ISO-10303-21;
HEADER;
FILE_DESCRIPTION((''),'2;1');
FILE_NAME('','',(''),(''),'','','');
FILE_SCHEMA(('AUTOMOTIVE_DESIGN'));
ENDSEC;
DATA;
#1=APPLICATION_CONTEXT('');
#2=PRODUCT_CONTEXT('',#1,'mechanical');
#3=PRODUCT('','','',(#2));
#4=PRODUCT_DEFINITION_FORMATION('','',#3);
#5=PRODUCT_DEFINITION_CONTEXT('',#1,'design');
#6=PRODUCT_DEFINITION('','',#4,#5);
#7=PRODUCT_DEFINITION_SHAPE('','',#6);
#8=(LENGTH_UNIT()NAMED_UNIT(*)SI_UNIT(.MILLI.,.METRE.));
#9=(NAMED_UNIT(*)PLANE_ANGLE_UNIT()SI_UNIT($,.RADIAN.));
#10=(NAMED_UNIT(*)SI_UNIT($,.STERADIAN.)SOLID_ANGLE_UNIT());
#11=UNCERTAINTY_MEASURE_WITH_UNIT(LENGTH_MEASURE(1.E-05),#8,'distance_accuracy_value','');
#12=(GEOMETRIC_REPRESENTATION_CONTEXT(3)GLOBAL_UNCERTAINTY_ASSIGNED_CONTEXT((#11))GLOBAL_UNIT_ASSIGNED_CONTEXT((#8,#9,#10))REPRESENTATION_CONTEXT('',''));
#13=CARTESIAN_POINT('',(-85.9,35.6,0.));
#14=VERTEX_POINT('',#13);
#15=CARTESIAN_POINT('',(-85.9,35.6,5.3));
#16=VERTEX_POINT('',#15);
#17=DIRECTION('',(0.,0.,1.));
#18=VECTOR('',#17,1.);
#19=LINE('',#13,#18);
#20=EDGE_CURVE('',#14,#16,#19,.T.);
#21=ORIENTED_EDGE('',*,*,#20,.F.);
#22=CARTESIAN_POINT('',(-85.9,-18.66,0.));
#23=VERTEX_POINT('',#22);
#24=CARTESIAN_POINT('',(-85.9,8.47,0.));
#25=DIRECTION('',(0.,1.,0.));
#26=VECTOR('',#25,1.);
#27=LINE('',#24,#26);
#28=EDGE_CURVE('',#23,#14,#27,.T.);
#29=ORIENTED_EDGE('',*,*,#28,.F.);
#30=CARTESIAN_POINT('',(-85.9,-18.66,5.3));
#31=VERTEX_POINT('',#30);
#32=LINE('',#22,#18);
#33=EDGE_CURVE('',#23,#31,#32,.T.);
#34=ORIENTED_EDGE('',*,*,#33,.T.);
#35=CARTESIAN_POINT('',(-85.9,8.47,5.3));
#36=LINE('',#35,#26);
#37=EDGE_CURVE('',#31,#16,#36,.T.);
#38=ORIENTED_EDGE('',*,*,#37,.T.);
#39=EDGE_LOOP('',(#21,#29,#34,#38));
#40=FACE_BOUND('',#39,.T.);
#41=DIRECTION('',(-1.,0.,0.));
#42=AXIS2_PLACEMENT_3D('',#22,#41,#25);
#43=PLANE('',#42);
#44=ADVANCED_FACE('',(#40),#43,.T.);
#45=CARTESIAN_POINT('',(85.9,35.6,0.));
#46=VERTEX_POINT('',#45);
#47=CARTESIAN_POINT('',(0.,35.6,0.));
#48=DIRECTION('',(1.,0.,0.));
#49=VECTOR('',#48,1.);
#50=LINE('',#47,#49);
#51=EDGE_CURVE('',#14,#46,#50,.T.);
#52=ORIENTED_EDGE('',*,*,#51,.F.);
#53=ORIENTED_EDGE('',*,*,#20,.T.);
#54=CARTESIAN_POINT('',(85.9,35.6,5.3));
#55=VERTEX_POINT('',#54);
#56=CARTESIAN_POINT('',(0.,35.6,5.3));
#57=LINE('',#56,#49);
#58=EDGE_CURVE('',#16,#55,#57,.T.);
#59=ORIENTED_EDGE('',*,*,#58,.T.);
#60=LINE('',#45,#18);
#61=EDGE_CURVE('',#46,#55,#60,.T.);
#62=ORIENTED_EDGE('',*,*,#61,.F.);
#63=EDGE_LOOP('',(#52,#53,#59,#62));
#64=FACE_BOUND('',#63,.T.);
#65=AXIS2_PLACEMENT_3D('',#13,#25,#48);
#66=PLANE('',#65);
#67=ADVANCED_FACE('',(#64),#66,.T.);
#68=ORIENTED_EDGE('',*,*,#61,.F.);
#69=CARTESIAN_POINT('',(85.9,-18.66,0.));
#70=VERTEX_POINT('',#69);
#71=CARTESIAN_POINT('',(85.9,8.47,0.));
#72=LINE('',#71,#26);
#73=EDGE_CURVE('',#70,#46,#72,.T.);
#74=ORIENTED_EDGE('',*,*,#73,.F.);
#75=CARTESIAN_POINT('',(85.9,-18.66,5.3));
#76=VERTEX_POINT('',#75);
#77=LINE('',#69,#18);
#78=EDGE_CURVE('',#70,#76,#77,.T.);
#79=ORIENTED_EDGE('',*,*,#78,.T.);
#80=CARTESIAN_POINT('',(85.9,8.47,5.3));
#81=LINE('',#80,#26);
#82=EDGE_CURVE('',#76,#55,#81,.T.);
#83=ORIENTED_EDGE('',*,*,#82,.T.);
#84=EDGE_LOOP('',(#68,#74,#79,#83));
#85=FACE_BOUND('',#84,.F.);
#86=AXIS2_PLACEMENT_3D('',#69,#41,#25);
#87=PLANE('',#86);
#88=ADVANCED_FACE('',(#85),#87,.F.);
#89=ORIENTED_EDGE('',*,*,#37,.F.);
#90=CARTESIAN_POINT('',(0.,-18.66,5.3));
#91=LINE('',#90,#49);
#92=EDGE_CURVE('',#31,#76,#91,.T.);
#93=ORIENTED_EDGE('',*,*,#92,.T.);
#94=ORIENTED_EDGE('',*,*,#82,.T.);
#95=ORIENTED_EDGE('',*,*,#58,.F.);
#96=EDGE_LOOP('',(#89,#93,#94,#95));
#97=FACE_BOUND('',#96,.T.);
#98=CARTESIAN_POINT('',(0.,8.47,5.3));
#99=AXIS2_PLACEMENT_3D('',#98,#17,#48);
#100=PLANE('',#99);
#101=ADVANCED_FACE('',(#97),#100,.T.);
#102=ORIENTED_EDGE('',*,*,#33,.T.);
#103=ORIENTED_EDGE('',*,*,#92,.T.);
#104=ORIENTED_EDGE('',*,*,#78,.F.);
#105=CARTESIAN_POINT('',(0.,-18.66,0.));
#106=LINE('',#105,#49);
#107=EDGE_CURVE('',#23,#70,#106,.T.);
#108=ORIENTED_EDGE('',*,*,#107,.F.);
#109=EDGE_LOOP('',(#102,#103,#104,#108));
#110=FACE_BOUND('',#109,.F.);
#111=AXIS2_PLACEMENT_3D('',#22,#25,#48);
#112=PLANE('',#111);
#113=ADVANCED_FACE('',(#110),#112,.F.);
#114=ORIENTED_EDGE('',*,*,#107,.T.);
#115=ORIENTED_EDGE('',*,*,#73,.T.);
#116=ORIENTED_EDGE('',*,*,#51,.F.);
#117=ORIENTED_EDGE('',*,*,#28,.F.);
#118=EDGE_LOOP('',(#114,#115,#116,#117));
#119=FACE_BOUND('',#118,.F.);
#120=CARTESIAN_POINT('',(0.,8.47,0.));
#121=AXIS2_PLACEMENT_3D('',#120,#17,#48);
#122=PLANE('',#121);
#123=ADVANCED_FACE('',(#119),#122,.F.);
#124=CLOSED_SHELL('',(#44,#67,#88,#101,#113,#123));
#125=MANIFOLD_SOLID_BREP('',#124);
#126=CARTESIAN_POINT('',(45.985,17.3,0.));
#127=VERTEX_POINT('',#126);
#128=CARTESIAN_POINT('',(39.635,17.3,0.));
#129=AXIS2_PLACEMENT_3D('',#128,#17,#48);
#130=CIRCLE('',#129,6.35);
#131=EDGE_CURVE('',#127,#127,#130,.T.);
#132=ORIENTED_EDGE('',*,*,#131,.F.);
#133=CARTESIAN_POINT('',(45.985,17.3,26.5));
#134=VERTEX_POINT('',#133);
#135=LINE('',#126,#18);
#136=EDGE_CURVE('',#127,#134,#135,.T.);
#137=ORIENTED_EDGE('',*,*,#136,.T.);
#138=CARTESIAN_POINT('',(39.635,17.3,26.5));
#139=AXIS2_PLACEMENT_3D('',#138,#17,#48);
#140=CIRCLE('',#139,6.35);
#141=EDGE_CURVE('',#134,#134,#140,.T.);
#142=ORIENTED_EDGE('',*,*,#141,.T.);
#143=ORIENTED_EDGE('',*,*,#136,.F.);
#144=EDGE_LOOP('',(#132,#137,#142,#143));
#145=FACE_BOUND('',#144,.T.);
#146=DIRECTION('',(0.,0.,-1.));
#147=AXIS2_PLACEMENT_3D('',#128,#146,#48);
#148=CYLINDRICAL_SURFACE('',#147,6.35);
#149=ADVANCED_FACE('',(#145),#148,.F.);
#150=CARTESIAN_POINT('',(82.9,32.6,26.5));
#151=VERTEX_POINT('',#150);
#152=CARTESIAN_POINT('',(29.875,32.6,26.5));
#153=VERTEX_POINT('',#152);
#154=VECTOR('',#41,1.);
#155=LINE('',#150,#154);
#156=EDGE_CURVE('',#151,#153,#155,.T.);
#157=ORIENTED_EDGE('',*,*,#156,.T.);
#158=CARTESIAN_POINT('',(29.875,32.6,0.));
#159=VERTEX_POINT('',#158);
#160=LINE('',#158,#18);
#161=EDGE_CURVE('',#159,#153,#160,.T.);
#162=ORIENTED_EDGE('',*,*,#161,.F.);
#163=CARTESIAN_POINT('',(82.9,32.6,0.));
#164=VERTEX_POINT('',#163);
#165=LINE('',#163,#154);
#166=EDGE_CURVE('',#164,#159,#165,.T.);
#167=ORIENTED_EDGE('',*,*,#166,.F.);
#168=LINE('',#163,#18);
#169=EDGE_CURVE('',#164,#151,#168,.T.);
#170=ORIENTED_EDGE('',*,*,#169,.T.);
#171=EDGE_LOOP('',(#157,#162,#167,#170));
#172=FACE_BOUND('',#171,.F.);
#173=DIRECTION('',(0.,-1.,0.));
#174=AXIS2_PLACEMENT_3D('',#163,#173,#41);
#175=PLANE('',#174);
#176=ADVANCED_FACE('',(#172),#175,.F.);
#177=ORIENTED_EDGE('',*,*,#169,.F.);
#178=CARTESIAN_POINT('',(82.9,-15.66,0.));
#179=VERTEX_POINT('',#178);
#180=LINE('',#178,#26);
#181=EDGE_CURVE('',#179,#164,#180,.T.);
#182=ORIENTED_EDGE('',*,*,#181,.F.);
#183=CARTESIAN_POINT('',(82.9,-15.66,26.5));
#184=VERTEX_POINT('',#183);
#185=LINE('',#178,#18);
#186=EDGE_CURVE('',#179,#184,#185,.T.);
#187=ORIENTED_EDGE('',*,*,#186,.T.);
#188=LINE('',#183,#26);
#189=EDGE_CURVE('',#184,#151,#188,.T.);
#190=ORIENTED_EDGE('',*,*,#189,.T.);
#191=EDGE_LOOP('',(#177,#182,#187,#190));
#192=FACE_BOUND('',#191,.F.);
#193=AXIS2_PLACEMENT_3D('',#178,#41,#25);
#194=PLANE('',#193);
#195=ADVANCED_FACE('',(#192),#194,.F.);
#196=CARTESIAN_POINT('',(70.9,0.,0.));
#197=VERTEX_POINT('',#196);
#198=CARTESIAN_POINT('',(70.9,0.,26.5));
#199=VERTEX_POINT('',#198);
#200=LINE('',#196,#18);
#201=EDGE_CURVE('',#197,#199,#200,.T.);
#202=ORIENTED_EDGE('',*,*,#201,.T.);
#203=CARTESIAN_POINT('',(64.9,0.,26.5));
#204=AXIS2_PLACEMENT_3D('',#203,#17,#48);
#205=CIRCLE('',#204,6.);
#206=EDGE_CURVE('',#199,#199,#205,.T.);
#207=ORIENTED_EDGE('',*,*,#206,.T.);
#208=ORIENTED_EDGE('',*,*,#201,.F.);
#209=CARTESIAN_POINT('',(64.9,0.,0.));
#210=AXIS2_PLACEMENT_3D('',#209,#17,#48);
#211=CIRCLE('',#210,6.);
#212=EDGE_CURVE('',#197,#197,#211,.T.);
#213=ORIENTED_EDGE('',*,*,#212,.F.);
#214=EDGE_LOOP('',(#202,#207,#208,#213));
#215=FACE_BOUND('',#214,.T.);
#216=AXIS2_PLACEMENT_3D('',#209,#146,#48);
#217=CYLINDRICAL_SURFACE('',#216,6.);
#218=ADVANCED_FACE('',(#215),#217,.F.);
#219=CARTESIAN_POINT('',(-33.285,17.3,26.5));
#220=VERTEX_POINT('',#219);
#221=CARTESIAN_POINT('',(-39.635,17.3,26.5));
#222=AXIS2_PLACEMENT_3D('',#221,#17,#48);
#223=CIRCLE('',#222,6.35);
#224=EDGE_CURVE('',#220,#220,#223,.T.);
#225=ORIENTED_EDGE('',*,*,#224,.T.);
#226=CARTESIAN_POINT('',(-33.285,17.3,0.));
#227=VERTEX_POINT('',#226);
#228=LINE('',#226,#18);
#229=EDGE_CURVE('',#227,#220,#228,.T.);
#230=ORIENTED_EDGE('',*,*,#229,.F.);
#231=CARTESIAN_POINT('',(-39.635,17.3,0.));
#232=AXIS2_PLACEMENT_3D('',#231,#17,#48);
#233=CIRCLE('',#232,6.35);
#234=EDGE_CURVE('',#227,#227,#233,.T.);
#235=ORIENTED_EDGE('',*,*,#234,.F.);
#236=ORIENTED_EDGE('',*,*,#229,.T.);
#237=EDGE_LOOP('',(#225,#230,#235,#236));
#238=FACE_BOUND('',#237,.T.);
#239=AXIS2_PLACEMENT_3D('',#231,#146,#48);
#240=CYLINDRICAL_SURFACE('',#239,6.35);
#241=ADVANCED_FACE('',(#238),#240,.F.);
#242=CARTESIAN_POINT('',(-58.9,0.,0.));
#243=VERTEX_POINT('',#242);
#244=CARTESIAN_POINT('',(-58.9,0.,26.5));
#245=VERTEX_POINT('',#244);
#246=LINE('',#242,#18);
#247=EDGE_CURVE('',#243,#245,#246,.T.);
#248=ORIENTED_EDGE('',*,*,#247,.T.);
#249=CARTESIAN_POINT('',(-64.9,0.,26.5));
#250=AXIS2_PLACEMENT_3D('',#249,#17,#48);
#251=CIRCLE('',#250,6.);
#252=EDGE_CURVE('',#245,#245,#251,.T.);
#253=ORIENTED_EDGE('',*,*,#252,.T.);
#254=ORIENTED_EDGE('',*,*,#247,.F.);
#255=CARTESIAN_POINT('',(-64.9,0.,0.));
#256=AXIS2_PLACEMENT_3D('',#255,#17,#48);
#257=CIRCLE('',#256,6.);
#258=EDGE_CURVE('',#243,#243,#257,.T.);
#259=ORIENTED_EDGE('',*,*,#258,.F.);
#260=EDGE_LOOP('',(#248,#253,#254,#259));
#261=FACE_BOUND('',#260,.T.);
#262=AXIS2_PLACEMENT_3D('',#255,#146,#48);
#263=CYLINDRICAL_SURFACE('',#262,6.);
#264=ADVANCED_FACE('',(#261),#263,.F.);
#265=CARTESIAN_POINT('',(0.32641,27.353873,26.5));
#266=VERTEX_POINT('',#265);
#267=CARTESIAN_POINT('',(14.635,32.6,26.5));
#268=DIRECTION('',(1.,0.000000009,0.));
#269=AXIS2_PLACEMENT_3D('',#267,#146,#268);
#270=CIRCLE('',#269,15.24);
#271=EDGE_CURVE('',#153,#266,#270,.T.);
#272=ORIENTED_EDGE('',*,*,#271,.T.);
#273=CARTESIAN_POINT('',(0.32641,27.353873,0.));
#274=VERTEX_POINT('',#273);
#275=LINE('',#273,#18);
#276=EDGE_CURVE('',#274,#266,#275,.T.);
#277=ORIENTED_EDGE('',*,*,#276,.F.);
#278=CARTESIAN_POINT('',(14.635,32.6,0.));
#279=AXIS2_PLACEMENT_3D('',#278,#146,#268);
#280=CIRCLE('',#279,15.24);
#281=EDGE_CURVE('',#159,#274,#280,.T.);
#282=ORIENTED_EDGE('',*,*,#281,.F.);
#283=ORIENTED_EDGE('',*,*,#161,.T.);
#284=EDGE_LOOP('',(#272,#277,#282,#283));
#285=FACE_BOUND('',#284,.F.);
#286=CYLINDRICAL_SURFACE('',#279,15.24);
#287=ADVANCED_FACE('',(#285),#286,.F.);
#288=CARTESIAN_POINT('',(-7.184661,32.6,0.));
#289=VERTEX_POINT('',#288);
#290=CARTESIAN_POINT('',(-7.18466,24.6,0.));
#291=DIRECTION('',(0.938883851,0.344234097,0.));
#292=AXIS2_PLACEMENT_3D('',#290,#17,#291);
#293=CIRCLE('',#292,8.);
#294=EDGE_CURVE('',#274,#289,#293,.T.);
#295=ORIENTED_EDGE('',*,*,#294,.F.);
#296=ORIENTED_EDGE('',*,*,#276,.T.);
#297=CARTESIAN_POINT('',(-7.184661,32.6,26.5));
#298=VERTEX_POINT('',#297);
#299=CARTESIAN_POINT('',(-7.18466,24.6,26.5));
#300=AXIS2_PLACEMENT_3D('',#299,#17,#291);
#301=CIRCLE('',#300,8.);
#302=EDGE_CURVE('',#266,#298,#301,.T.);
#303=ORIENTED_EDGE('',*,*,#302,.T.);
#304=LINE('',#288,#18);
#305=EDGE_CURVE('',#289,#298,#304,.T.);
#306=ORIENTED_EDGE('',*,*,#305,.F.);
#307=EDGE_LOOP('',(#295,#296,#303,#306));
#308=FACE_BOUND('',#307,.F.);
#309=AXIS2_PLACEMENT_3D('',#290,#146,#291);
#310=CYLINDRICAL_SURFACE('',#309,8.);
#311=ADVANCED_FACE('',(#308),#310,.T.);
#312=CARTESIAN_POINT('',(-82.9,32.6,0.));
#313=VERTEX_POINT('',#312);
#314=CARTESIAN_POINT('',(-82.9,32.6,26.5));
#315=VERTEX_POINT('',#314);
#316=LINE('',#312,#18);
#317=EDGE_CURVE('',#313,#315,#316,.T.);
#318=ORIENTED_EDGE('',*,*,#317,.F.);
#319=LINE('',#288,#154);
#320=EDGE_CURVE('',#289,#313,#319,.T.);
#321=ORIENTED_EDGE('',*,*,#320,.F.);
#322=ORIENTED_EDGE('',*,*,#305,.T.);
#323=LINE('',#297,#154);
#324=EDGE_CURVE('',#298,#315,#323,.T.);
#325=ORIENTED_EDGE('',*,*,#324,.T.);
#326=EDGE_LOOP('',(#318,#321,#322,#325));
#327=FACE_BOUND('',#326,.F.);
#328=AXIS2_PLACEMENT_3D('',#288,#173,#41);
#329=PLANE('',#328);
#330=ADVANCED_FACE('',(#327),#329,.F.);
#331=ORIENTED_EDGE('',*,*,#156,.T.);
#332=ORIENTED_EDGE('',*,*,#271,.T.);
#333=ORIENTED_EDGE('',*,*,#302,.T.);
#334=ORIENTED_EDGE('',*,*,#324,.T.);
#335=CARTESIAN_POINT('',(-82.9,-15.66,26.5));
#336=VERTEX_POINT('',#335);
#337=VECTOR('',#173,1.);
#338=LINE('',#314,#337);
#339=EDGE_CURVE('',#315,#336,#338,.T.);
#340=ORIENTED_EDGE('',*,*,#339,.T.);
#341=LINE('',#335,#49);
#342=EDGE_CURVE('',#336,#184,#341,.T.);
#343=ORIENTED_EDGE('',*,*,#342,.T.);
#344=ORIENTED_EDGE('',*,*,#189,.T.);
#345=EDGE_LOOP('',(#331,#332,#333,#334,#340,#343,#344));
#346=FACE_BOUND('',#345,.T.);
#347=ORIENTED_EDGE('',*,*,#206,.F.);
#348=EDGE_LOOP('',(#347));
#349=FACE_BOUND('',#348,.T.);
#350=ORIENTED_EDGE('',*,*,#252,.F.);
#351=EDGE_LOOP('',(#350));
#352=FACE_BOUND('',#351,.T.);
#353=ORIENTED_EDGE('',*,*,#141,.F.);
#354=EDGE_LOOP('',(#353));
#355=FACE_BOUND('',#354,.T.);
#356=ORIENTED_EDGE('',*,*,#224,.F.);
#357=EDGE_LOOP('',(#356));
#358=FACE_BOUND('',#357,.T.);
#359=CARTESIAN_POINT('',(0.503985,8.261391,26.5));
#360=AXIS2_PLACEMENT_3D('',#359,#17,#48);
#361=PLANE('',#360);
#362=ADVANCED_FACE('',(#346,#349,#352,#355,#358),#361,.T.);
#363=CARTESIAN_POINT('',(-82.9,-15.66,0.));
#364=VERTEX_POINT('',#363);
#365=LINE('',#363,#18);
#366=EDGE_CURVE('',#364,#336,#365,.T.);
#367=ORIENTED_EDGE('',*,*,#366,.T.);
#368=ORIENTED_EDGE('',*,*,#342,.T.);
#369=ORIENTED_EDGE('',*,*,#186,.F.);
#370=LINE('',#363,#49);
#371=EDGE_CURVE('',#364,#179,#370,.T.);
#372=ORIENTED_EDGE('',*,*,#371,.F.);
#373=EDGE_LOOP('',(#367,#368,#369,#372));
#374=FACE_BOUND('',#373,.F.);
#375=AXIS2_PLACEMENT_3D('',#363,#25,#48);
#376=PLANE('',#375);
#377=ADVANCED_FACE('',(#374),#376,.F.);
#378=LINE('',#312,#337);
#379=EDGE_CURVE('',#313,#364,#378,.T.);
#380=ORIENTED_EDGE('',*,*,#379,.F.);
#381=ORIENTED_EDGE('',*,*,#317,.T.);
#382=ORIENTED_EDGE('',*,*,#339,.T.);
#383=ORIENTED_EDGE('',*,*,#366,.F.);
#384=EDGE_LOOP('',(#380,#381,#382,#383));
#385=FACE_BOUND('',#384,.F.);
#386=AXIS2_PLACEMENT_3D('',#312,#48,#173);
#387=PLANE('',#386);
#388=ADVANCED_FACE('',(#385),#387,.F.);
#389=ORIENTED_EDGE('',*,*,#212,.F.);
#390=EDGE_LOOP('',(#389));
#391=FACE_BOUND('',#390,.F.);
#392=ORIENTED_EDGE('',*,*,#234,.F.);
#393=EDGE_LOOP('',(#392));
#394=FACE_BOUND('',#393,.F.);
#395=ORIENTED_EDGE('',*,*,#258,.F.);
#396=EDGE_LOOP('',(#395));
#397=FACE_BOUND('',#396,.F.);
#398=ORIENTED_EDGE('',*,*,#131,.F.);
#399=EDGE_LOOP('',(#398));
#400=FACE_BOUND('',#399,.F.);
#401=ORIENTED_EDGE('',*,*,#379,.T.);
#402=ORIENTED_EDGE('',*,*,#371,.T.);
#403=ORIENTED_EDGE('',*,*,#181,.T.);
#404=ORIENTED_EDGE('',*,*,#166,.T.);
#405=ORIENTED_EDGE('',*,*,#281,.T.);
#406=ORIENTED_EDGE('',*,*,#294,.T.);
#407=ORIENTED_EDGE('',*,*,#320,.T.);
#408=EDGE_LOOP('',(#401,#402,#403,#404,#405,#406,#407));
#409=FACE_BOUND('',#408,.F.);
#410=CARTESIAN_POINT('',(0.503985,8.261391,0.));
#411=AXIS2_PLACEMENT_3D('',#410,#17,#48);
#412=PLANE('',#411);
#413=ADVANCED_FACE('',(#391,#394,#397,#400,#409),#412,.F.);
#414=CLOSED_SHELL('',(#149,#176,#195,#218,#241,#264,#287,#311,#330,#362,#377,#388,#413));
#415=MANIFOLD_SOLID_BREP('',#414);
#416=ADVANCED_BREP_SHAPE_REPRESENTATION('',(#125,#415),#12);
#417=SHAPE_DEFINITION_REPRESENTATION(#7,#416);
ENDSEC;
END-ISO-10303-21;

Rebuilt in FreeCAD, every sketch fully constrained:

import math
import FreeCAD as App
import Part
import Sketcher
Q = App.Units.Quantity


def add_polygon(sketch, points):
    """Adds a closed chain of lines whose ends are joined by coincident constraints."""
    first, n = sketch.GeometryCount, len(points)
    for a, b in zip(points, points[1:] + points[:1]):
        sketch.addGeometry(Part.LineSegment(App.Vector(*a, 0), App.Vector(*b, 0)), False)
    for i in range(n):
        sketch.addConstraint(Sketcher.Constraint("Coincident", first + i, 2, first + (i + 1) % n, 1))

doc = App.newDocument("Part")
body = doc.addObject("PartDesign::Body", "Body")

# Sketch on XY plane
sketch1 = body.newObject("Sketcher::SketchObject", "Sketch")
sketch1.AttachmentSupport = (doc.getObject("XY_Plane"), [""])
sketch1.MapMode = "FlatFace"
sketch1.addGeometry(Part.LineSegment(App.Vector(-7, 33, 0), App.Vector(-83, 33, 0)), False)
sketch1.addGeometry(Part.LineSegment(App.Vector(-83, 33, 0), App.Vector(-83, -16, 0)), False)
sketch1.addGeometry(Part.LineSegment(App.Vector(-83, -16, 0), App.Vector(83, -16, 0)), False)
sketch1.addGeometry(Part.LineSegment(App.Vector(83, -16, 0), App.Vector(83, 33, 0)), False)
sketch1.addGeometry(Part.LineSegment(App.Vector(83, 33, 0), App.Vector(30, 33, 0)), False)
sketch1.addGeometry(Part.ArcOfCircle(Part.Circle(App.Vector(15, 33, 0), App.Vector(0, 0, 1), 15), math.radians(-160), math.radians(0)), False)
sketch1.addGeometry(Part.ArcOfCircle(Part.Circle(App.Vector(-7, 25, 0), App.Vector(0, 0, 1), 8), math.radians(20), math.radians(90)), False)
sketch1.addGeometry(Part.Circle(App.Vector(-65, 0, 0), App.Vector(0, 0, 1), 6), False)
sketch1.addGeometry(Part.Circle(App.Vector(65, 0, 0), App.Vector(0, 0, 1), 6), False)
sketch1.addGeometry(Part.Circle(App.Vector(-40, 17, 0), App.Vector(0, 0, 1), 6), False)
sketch1.addGeometry(Part.Circle(App.Vector(40, 17, 0), App.Vector(0, 0, 1), 6), False)
sketch1.addConstraint(Sketcher.Constraint("Coincident", 0, 2, 1, 1))
sketch1.addConstraint(Sketcher.Constraint("Coincident", 1, 2, 2, 1))
sketch1.addConstraint(Sketcher.Constraint("Coincident", 2, 2, 3, 1))
sketch1.addConstraint(Sketcher.Constraint("Coincident", 3, 2, 4, 1))
sketch1.addConstraint(Sketcher.Constraint("Coincident", 4, 2, 5, 2))
sketch1.addConstraint(Sketcher.Constraint("Tangent", 5, 1, 6, 1))
sketch1.addConstraint(Sketcher.Constraint("Tangent", 6, 2, 0, 1))
sketch1.addConstraint(Sketcher.Constraint("Horizontal", 0))
sketch1.addConstraint(Sketcher.Constraint("Vertical", 1))
sketch1.addConstraint(Sketcher.Constraint("Horizontal", 2))
sketch1.addConstraint(Sketcher.Constraint("Vertical", 3))
sketch1.addConstraint(Sketcher.Constraint("Horizontal", 4))
sketch1.addConstraint(Sketcher.Constraint("Equal", 7, 8))
sketch1.addConstraint(Sketcher.Constraint("Equal", 9, 10))
sketch1.addConstraint(Sketcher.Constraint("Symmetric", 7, 3, 8, 3, -1, 1))
sketch1.addConstraint(Sketcher.Constraint("Symmetric", 9, 3, 10, 3, -2))
sketch1.addConstraint(Sketcher.Constraint("Symmetric", 0, 2, 3, 2, -2))
sketch1.addConstraint(Sketcher.Constraint("PointOnObject", 7, 3, -1))
sketch1.addConstraint(Sketcher.Constraint("Horizontal", 5, 3, 0, 2))
sketch1.addConstraint(Sketcher.Constraint("Diameter", 7, Q("12 mm")))
sketch1.addConstraint(Sketcher.Constraint("Radius", 6, Q("8 mm")))
sketch1.addConstraint(Sketcher.Constraint("Diameter", 9, Q("12.7 mm")))
sketch1.addConstraint(Sketcher.Constraint("Radius", 5, Q("15.24 mm")))
sketch1.addConstraint(Sketcher.Constraint("DistanceX", 2, 1, 2, 2, Q("165.8 mm")))
sketch1.addConstraint(Sketcher.Constraint("DistanceX", 5, 3, 10, 3, Q("25 mm")))
sketch1.addConstraint(Sketcher.Constraint("DistanceX", 0, 2, 7, 3, Q("18 mm")))
sketch1.addConstraint(Sketcher.Constraint("DistanceY", 1, 2, 1, 1, Q("48.26 mm")))
sketch1.addConstraint(Sketcher.Constraint("DistanceY", -1, 1, 5, 3, Q("32.6 mm")))
sketch1.addConstraint(Sketcher.Constraint("DistanceY", -1, 1, 9, 3, Q("17.3 mm")))
sketch1.addConstraint(Sketcher.Constraint("DistanceX", 4, 2, 4, 1, Q("53.025 mm")))
pad1 = body.newObject("PartDesign::Pad", "Pad")
pad1.Profile = sketch1
pad1.Length = 26.5
body2 = doc.addObject("PartDesign::Body", "Body001")

# Sketch on XY plane
sketch2 = body2.newObject("Sketcher::SketchObject", "Sketch001")
sketch2.AttachmentSupport = (doc.getObject("XY_Plane001"), [""])
sketch2.MapMode = "FlatFace"
add_polygon(sketch2, [(-86, 36), (-86, -19), (86, -19), (86, 36)])  # lines 0-3
sketch2.addConstraint(Sketcher.Constraint("Vertical", 0))
sketch2.addConstraint(Sketcher.Constraint("Horizontal", 1))
sketch2.addConstraint(Sketcher.Constraint("Vertical", 2))
sketch2.addConstraint(Sketcher.Constraint("Horizontal", 3))
sketch2.addConstraint(Sketcher.Constraint("DistanceX", 1, 1, 1, 2, Q("171.8 mm")))
sketch2.addConstraint(Sketcher.Constraint("DistanceY", 0, 2, 0, 1, Q("54.26 mm")))
sketch2.addConstraint(Sketcher.Constraint("DistanceX", 0, 2, -1, 1, Q("85.9 mm")))
sketch2.addConstraint(Sketcher.Constraint("DistanceY", -1, 1, 2, 2, Q("35.6 mm")))
pad2 = body2.newObject("PartDesign::Pad", "Pad001")
pad2.Profile = sketch2
pad2.Length = 5.3

doc.recompute()
